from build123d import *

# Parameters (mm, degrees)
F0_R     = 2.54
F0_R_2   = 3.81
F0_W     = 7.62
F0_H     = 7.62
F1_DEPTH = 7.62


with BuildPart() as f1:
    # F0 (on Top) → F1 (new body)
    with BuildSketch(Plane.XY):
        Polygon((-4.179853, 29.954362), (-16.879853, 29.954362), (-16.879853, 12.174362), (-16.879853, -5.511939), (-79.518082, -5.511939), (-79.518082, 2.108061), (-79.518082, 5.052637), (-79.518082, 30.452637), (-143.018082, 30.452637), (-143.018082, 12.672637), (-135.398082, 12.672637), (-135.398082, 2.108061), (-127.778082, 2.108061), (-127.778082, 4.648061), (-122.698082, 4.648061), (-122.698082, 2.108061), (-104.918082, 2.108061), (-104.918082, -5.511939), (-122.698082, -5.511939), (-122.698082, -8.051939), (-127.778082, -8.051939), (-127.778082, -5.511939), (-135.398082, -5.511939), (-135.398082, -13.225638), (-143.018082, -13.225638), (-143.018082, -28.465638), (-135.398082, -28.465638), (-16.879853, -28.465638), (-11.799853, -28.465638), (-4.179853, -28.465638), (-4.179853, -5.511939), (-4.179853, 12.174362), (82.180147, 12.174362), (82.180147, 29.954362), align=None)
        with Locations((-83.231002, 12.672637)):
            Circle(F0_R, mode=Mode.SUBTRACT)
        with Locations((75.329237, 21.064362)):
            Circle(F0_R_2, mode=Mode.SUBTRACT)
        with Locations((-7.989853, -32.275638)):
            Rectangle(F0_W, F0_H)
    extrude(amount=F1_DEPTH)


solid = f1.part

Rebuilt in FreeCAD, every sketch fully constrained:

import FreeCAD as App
import Part
import Sketcher
Q = App.Units.Quantity

doc = App.newDocument("Part")
params = doc.addObject("Spreadsheet::Sheet", "Params")
for row, (alias, value) in enumerate([
    ("sketch1_diameter", "0.2 in"),
    ("sketch1_diameter2", "0.3 in"),
    ("sketch1_width", "2.5 in"),
    ("sketch1_width2", "0.3 in"),
    ("sketch1_width3", "0.2 in"),
    ("pad1_length", "0.3 in"),
], start=1):
    params.set(f"A{row}", alias)
    params.set(f"B{row}", "=" + value)
    params.setAlias(f"B{row}", alias)

body = doc.addObject("PartDesign::Body", "Body")

# Sketch on XY plane
sketch1 = doc.addObject("Sketcher::SketchObject", "Sketch")
body.addObject(sketch1)
sketch1.AttachmentSupport = (doc.XY_Plane, [""])
sketch1.MapMode = "FlatFace"
sketch1.addGeometry([
    Part.LineSegment(App.Vector(-16.9, 30, 0), App.Vector(-16.9, -5.5, 0)),  # 0
    Part.LineSegment(App.Vector(-16.9, -5.5, 0), App.Vector(-79.5, -5.5, 0)),  # 1
    Part.LineSegment(App.Vector(-79.5, -5.5, 0), App.Vector(-79.5, 30.5, 0)),  # 2
    Part.LineSegment(App.Vector(-79.5, 30.5, 0), App.Vector(-143, 30.5, 0)),  # 3
    Part.LineSegment(App.Vector(-143, 30.5, 0), App.Vector(-143, 12.7, 0)),  # 4
    Part.LineSegment(App.Vector(-143, 12.7, 0), App.Vector(-135.4, 12.7, 0)),  # 5
    Part.LineSegment(App.Vector(-135.4, 12.7, 0), App.Vector(-135.4, 2.1, 0)),  # 6
    Part.LineSegment(App.Vector(-135.4, 2.1, 0), App.Vector(-127.8, 2.1, 0)),  # 7
    Part.LineSegment(App.Vector(-127.8, 2.1, 0), App.Vector(-127.8, 4.6, 0)),  # 8
    Part.LineSegment(App.Vector(-127.8, 4.6, 0), App.Vector(-122.7, 4.6, 0)),  # 9
    Part.LineSegment(App.Vector(-122.7, 4.6, 0), App.Vector(-122.7, 2.1, 0)),  # 10
    Part.LineSegment(App.Vector(-122.7, 2.1, 0), App.Vector(-104.9, 2.1, 0)),  # 11
    Part.LineSegment(App.Vector(-104.9, 2.1, 0), App.Vector(-104.9, -5.5, 0)),  # 12
    Part.LineSegment(App.Vector(-104.9, -5.5, 0), App.Vector(-122.7, -5.5, 0)),  # 13
    Part.LineSegment(App.Vector(-122.7, -5.5, 0), App.Vector(-122.7, -8.1, 0)),  # 14
    Part.LineSegment(App.Vector(-122.7, -8.1, 0), App.Vector(-127.8, -8.1, 0)),  # 15
    Part.LineSegment(App.Vector(-127.8, -8.1, 0), App.Vector(-127.8, -5.5, 0)),  # 16
    Part.LineSegment(App.Vector(-127.8, -5.5, 0), App.Vector(-135.4, -5.5, 0)),  # 17
    Part.LineSegment(App.Vector(-135.4, -5.5, 0), App.Vector(-135.4, -13.2, 0)),  # 18
    Part.LineSegment(App.Vector(-135.4, -13.2, 0), App.Vector(-143, -13.2, 0)),  # 19
    Part.LineSegment(App.Vector(-143, -13.2, 0), App.Vector(-143, -28.5, 0)),  # 20
    Part.LineSegment(App.Vector(-143, -28.5, 0), App.Vector(-11.8, -28.5, 0)),  # 21
    Part.LineSegment(App.Vector(-11.8, -28.5, 0), App.Vector(-11.8, -36.1, 0)),  # 22
    Part.LineSegment(App.Vector(-11.8, -36.1, 0), App.Vector(-4.2, -36.1, 0)),  # 23
    Part.LineSegment(App.Vector(-4.2, -36.1, 0), App.Vector(-4.2, 12.2, 0)),  # 24
    Part.LineSegment(App.Vector(-4.2, 12.2, 0), App.Vector(82.2, 12.2, 0)),  # 25
    Part.LineSegment(App.Vector(82.2, 12.2, 0), App.Vector(82.2, 30, 0)),  # 26
    Part.LineSegment(App.Vector(82.2, 30, 0), App.Vector(-16.9, 30, 0)),  # 27
    Part.Circle(App.Vector(-83.2, 12.7, 0), App.Vector(0, 0, 1), 2.5),  # 28
    Part.Circle(App.Vector(75.3, 21.1, 0), App.Vector(0, 0, 1), 3.8),  # 29
], False)
sketch1.addConstraint([
    Sketcher.Constraint("Coincident", 0, 2, 1, 1),
    Sketcher.Constraint("Coincident", 1, 2, 2, 1),
    Sketcher.Constraint("Coincident", 2, 2, 3, 1),
    Sketcher.Constraint("Coincident", 3, 2, 4, 1),
    Sketcher.Constraint("Coincident", 4, 2, 5, 1),
    Sketcher.Constraint("Coincident", 5, 2, 6, 1),
    Sketcher.Constraint("Coincident", 6, 2, 7, 1),
    Sketcher.Constraint("Coincident", 7, 2, 8, 1),
    Sketcher.Constraint("Coincident", 8, 2, 9, 1),
    Sketcher.Constraint("Coincident", 9, 2, 10, 1),
    Sketcher.Constraint("Coincident", 10, 2, 11, 1),
    Sketcher.Constraint("Coincident", 11, 2, 12, 1),
    Sketcher.Constraint("Coincident", 12, 2, 13, 1),
    Sketcher.Constraint("Coincident", 13, 2, 14, 1),
    Sketcher.Constraint("Coincident", 14, 2, 15, 1),
    Sketcher.Constraint("Coincident", 15, 2, 16, 1),
    Sketcher.Constraint("Coincident", 16, 2, 17, 1),
    Sketcher.Constraint("Coincident", 17, 2, 18, 1),
    Sketcher.Constraint("Coincident", 18, 2, 19, 1),
    Sketcher.Constraint("Coincident", 19, 2, 20, 1),
    Sketcher.Constraint("Coincident", 20, 2, 21, 1),
    Sketcher.Constraint("Coincident", 21, 2, 22, 1),
    Sketcher.Constraint("Coincident", 22, 2, 23, 1),
    Sketcher.Constraint("Coincident", 23, 2, 24, 1),
    Sketcher.Constraint("Coincident", 24, 2, 25, 1),
    Sketcher.Constraint("Coincident", 25, 2, 26, 1),
    Sketcher.Constraint("Coincident", 26, 2, 27, 1),
    Sketcher.Constraint("Coincident", 27, 2, 0, 1),
    Sketcher.Constraint("Vertical", 0),
    Sketcher.Constraint("Horizontal", 1),
    Sketcher.Constraint("Vertical", 2),
    Sketcher.Constraint("Horizontal", 3),
    Sketcher.Constraint("Vertical", 4),
    Sketcher.Constraint("Horizontal", 5),
    Sketcher.Constraint("Vertical", 6),
    Sketcher.Constraint("Horizontal", 7),
    Sketcher.Constraint("Vertical", 8),
    Sketcher.Constraint("Horizontal", 9),
    Sketcher.Constraint("Vertical", 10),
    Sketcher.Constraint("Horizontal", 11),
    Sketcher.Constraint("Vertical", 12),
    Sketcher.Constraint("Horizontal", 13),
    Sketcher.Constraint("Vertical", 14),
    Sketcher.Constraint("Horizontal", 15),
    Sketcher.Constraint("Vertical", 16),
    Sketcher.Constraint("Horizontal", 17),
    Sketcher.Constraint("Vertical", 18),
    Sketcher.Constraint("Horizontal", 19),
    Sketcher.Constraint("Vertical", 20),
    Sketcher.Constraint("Horizontal", 21),
    Sketcher.Constraint("Vertical", 22),
    Sketcher.Constraint("Horizontal", 23),
    Sketcher.Constraint("Vertical", 24),
    Sketcher.Constraint("Horizontal", 25),
    Sketcher.Constraint("Vertical", 26),
    Sketcher.Constraint("Horizontal", 27),
    Sketcher.Constraint("Horizontal", 28, 3, 4, 2),
    Sketcher.Constraint("Horizontal", 7, 2, 10, 2),
    Sketcher.Constraint("Horizontal", 1, 2, 12, 2),
    Sketcher.Constraint("Horizontal", 13, 2, 16, 2),
    Sketcher.Constraint("Vertical", 10, 2, 13, 2),
    Sketcher.Constraint("Vertical", 8, 2, 15, 2),
    Sketcher.Constraint("Vertical", 6, 2, 17, 2),
    Sketcher.Constraint("Vertical", 4, 2, 19, 2),
    Sketcher.Constraint("Equal", 5, 7),
    Sketcher.Constraint("Equal", 19, 23),
    Sketcher.Constraint("Equal", 13, 4),
    Sketcher.Constraint("Equal", 23, 12),
    Sketcher.Constraint("Equal", 10, 14),
    Sketcher.Constraint("Equal", 12, 22),
    Sketcher.Constraint("Equal", 4, 26),
    Sketcher.Constraint("Diameter", 28, Q("0.2 in")),
    Sketcher.Constraint("Diameter", 29, Q("0.3 in")),
    Sketcher.Constraint("DistanceX", 3, 2, 3, 1, Q("2.5 in")),
    Sketcher.Constraint("DistanceX", 5, 1, 5, 2, Q("0.3 in")),
    Sketcher.Constraint("DistanceX", 9, 1, 9, 2, Q("0.2 in")),
    Sketcher.Constraint("DistanceX", 11, 1, 11, 2, Q("0.7 in")),
    Sketcher.Constraint("DistanceX", 25, 1, 25, 2, Q("3.4 in")),
    Sketcher.Constraint("DistanceX", 27, 2, 27, 1, Q("3.9 in")),
    Sketcher.Constraint("DistanceY", 8, 1, 8, 2, Q("0.1 in")),
    Sketcher.Constraint("DistanceY", 20, 2, 20, 1, Q("0.6 in")),
    Sketcher.Constraint("DistanceY", 24, 1, 24, 2, Q("1.9 in")),
    Sketcher.Constraint("DistanceY", 25, 2, 29, 3, Q("0.35 in")),
    Sketcher.Constraint("DistanceY", 0, 2, 0, 1, Q("35.466301 mm")),
    Sketcher.Constraint("DistanceX", 1, 2, 1, 1, Q("62.638229 mm")),
    Sketcher.Constraint("DistanceY", 2, 1, 2, 2, Q("35.964576 mm")),
    Sketcher.Constraint("DistanceY", -1, 1, 29, 3, Q("21.064362 mm")),
    Sketcher.Constraint("DistanceX", 3, 2, -1, 1, Q("143.018082 mm")),
    Sketcher.Constraint("DistanceX", 28, 3, 29, 3, Q("158.560239 mm")),
    Sketcher.Constraint("DistanceX", 28, 3, 0, 2, Q("66.351149 mm")),
])
sketch1.setExpression("Constraints[71]", "Params.sketch1_diameter")
sketch1.setExpression("Constraints[72]", "Params.sketch1_diameter2")
sketch1.setExpression("Constraints[73]", "Params.sketch1_width")
sketch1.setExpression("Constraints[74]", "Params.sketch1_width2")
sketch1.setExpression("Constraints[75]", "Params.sketch1_width3")
pad1 = doc.addObject("PartDesign::Pad", "Pad")
body.addObject(pad1)
pad1.Profile = sketch1
pad1.setExpression("Length", "Params.pad1_length")

doc.recompute()
